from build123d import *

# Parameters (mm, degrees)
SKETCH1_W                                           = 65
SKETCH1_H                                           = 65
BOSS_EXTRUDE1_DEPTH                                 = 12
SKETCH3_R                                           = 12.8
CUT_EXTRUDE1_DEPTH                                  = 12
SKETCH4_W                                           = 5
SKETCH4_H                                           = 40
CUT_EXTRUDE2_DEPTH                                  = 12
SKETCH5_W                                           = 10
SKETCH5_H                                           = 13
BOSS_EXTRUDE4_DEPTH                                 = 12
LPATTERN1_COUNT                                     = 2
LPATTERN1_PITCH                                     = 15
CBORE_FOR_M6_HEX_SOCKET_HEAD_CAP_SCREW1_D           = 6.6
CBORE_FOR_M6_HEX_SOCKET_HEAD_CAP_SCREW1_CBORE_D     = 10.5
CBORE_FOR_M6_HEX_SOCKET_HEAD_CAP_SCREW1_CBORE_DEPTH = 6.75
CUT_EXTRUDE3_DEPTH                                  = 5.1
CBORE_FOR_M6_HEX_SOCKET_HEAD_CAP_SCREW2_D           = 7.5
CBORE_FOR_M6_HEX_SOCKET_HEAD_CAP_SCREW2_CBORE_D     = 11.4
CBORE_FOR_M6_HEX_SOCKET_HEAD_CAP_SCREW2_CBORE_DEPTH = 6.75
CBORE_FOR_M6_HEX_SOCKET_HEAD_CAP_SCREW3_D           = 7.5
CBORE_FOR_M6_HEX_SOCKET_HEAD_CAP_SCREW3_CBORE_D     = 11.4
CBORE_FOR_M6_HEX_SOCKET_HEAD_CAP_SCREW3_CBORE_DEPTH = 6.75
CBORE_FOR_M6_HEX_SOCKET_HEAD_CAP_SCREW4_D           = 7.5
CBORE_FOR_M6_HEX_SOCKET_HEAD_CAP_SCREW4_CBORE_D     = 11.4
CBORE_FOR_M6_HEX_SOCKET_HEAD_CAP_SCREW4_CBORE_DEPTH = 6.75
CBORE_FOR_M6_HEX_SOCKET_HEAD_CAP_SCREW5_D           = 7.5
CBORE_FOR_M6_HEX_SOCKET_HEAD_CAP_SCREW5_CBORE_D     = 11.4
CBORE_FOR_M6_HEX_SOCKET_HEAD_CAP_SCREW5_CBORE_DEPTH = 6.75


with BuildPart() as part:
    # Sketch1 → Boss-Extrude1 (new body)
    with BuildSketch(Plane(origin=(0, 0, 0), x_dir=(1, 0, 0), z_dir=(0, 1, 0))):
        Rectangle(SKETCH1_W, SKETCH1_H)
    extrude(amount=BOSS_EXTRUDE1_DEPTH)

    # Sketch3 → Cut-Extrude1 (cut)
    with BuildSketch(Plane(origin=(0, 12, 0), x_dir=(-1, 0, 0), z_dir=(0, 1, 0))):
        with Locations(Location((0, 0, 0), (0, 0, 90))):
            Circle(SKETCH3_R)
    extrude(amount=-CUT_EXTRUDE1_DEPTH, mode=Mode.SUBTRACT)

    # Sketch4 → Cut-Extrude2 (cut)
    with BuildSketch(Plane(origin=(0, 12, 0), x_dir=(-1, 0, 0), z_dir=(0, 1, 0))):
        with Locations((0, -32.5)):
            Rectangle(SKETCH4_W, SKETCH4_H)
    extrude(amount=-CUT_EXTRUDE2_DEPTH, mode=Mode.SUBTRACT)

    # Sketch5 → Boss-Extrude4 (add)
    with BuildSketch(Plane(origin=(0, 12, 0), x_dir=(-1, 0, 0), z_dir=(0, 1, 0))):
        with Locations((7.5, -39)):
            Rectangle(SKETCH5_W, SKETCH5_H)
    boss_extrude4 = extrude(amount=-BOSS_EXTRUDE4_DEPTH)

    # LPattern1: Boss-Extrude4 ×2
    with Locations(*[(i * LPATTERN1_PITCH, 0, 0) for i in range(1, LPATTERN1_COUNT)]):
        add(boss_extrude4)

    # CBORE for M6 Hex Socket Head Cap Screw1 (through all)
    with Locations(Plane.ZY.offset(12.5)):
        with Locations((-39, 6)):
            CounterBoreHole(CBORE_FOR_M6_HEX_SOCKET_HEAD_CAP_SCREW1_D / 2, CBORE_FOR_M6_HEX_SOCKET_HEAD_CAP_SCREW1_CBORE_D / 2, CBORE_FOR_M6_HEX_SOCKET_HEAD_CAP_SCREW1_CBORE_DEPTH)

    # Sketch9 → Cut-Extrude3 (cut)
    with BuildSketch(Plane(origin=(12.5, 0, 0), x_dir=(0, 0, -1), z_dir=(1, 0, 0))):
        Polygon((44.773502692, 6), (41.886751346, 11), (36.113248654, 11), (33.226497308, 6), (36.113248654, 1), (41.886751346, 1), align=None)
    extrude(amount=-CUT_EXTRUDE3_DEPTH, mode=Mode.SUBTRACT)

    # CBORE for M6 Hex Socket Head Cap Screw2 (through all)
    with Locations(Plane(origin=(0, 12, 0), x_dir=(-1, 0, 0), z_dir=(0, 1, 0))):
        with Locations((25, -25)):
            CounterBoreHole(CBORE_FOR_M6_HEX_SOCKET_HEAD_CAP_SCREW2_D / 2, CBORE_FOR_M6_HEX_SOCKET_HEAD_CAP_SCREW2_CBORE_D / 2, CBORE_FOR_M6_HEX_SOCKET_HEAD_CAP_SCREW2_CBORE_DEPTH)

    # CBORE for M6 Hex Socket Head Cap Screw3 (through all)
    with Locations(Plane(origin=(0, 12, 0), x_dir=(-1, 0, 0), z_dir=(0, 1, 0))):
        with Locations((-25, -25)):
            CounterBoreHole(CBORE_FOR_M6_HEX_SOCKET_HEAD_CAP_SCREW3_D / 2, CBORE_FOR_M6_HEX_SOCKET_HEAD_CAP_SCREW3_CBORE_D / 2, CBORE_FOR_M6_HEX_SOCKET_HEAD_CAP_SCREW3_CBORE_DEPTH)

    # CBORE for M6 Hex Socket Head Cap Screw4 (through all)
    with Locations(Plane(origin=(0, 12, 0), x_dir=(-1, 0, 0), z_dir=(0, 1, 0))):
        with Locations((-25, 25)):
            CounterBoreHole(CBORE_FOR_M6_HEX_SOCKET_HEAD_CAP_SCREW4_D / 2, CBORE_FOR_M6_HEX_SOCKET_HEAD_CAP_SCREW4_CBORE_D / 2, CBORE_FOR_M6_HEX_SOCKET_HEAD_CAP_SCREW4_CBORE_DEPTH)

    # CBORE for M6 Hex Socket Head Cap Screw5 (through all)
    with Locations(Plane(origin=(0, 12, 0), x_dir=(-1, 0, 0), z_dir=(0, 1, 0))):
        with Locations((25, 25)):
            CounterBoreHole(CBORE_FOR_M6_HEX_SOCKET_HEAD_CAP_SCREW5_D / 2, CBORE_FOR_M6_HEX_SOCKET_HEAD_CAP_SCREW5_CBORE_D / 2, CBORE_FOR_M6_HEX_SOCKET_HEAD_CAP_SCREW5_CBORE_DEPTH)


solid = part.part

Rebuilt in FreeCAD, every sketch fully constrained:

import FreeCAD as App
import Part
import Sketcher
from FreeCAD import Vector
Q = App.Units.Quantity

doc = App.newDocument("Part")
body = doc.addObject("PartDesign::Body", "Body")

sketch1 = doc.addObject("Sketcher::SketchObject", "Sketch")
body.addObject(sketch1)
sketch1.AttachmentSupport = (doc.XZ_Plane, [""])
sketch1.MapMode = "FlatFace"
sketch1.addGeometry([
    Part.LineSegment(Vector(-32.5, -32.5, 0), Vector(-32.5, 32.5, 0)),
    Part.LineSegment(Vector(-32.5, 32.5, 0), Vector(32.5, 32.5, 0)),
    Part.LineSegment(Vector(32.5, 32.5, 0), Vector(32.5, -32.5, 0)),
    Part.LineSegment(Vector(32.5, -32.5, 0), Vector(-32.5, -32.5, 0)),
], False)
sketch1.addConstraint([
    Sketcher.Constraint("Coincident", 0, 2, 1, 1),
    Sketcher.Constraint("Coincident", 1, 2, 2, 1),
    Sketcher.Constraint("Coincident", 2, 2, 3, 1),
    Sketcher.Constraint("Coincident", 3, 2, 0, 1),
    Sketcher.Constraint("Vertical", 0),
    Sketcher.Constraint("Horizontal", 1),
    Sketcher.Constraint("Vertical", 2),
    Sketcher.Constraint("Horizontal", 3),
    Sketcher.Constraint("Symmetric", 0, 2, 2, 2, -1, 1),
    Sketcher.Constraint("Equal", 3, 0),
    Sketcher.Constraint("DistanceX", 1, 1, 1, 2, 65.0),
])
pad1 = doc.addObject("PartDesign::Pad", "Pad")
body.addObject(pad1)
pad1.Profile = sketch1
pad1.Length = 12
pad1.Reversed = True

sketch2 = doc.addObject("Sketcher::SketchObject", "Sketch001")
body.addObject(sketch2)
sketch2.AttachmentSupport = (doc.XZ_Plane, [""])
sketch2.MapMode = "FlatFace"
sketch2.AttachmentOffset = App.Placement(Vector(0, 0, -12), App.Rotation())
sketch2.addGeometry(Part.Circle(Vector(0, 0, 0), Vector(0, 0, 1), 12.8), False)
sketch2.addConstraint([
    Sketcher.Constraint("Coincident", 0, 3, -1, 1),
    Sketcher.Constraint("Diameter", 0, 25.6),
])
pocket1 = doc.addObject("PartDesign::Pocket", "Pocket")
body.addObject(pocket1)
pocket1.Profile = sketch2
pocket1.Length = 12
pocket1.Reversed = True

sketch3 = doc.addObject("Sketcher::SketchObject", "Sketch002")
body.addObject(sketch3)
sketch3.AttachmentSupport = (doc.XZ_Plane, [""])
sketch3.MapMode = "FlatFace"
sketch3.AttachmentOffset = App.Placement(Vector(0, 0, -12), App.Rotation())
sketch3.addGeometry([
    Part.LineSegment(Vector(2.5, -12.5, 0), Vector(2.5, -52.5, 0)),
    Part.LineSegment(Vector(2.5, -52.5, 0), Vector(-2.5, -52.5, 0)),
    Part.LineSegment(Vector(-2.5, -52.5, 0), Vector(-2.5, -12.5, 0)),
    Part.LineSegment(Vector(-2.5, -12.5, 0), Vector(2.5, -12.5, 0)),
], False)
sketch3.addConstraint([
    Sketcher.Constraint("Coincident", 0, 2, 1, 1),
    Sketcher.Constraint("Coincident", 1, 2, 2, 1),
    Sketcher.Constraint("Coincident", 2, 2, 3, 1),
    Sketcher.Constraint("Coincident", 3, 2, 0, 1),
    Sketcher.Constraint("Vertical", 0),
    Sketcher.Constraint("Horizontal", 1),
    Sketcher.Constraint("Vertical", 2),
    Sketcher.Constraint("Horizontal", 3),
    Sketcher.Constraint("DistanceX", 1, 2, 1, 1, 5.0),
    Sketcher.Constraint("DistanceY", 0, 2, 0, 1, 40.0),
    Sketcher.Constraint("DistanceX", -1, 1, 0, 2, 2.5),
    Sketcher.Constraint("DistanceY", 0, 2, -1, 1, 52.5),
])
pocket2 = doc.addObject("PartDesign::Pocket", "Pocket001")
body.addObject(pocket2)
pocket2.Profile = sketch3
pocket2.Length = 12
pocket2.Reversed = True

sketch4 = doc.addObject("Sketcher::SketchObject", "Sketch003")
body.addObject(sketch4)
sketch4.AttachmentSupport = (doc.XZ_Plane, [""])
sketch4.MapMode = "FlatFace"
sketch4.AttachmentOffset = App.Placement(Vector(0, 0, -12), App.Rotation())
sketch4.addGeometry([
    Part.LineSegment(Vector(-2.5, -32.5, 0), Vector(-2.5, -45.5, 0)),
    Part.LineSegment(Vector(-2.5, -45.5, 0), Vector(-12.5, -45.5, 0)),
    Part.LineSegment(Vector(-12.5, -45.5, 0), Vector(-12.5, -32.5, 0)),
    Part.LineSegment(Vector(-12.5, -32.5, 0), Vector(-2.5, -32.5, 0)),
], False)
sketch4.addConstraint([
    Sketcher.Constraint("Coincident", 0, 2, 1, 1),
    Sketcher.Constraint("Coincident", 1, 2, 2, 1),
    Sketcher.Constraint("Coincident", 2, 2, 3, 1),
    Sketcher.Constraint("Coincident", 3, 2, 0, 1),
    Sketcher.Constraint("Vertical", 0),
    Sketcher.Constraint("Horizontal", 1),
    Sketcher.Constraint("Vertical", 2),
    Sketcher.Constraint("Horizontal", 3),
    Sketcher.Constraint("DistanceX", 1, 2, 1, 1, 10.0),
    Sketcher.Constraint("DistanceY", 0, 2, 0, 1, 13.0),
    Sketcher.Constraint("DistanceX", 0, 2, -1, 1, 2.5),
    Sketcher.Constraint("DistanceY", 0, 2, -1, 1, 45.5),
])
pad2 = doc.addObject("PartDesign::Pad", "Pad001")
body.addObject(pad2)
pad2.Profile = sketch4
pad2.Length = 12
doc.recompute()

linearpattern = doc.addObject("PartDesign::LinearPattern", "LinearPattern")
body.addObject(linearpattern)
linearpattern.Originals = [pad2]
linearpattern.Direction = (doc.X_Axis, [""])
linearpattern.Mode = "offset"
linearpattern.Offset = 15
linearpattern.Occurrences = 2
body.Tip = linearpattern

sketch5 = doc.addObject("Sketcher::SketchObject", "Sketch004")
body.addObject(sketch5)
sketch5.AttachmentSupport = (doc.YZ_Plane, [""])
sketch5.MapMode = "FlatFace"
sketch5.AttachmentOffset = App.Placement(Vector(0, 0, -12.5), App.Rotation())
sketch5.addGeometry(Part.Circle(Vector(6, -39, 0), Vector(0, 0, 1), 3.3), False)
sketch5.addConstraint([
    Sketcher.Constraint("Diameter", 0, 6.6),
    Sketcher.Constraint("DistanceX", -1, 1, 0, 3, 6.0),
    Sketcher.Constraint("DistanceY", 0, 3, -1, 1, 39.0),
])
doc.recompute()
hole = doc.addObject("PartDesign::Hole", "Hole")
body.addObject(hole)
hole.Profile = sketch5
hole.ThreadType = "None"
hole.Diameter = 6.6
hole.DepthType = "ThroughAll"
hole.HoleCutType = "Counterbore"
hole.HoleCutDiameter = 10.5
hole.HoleCutDepth = 6.75
hole.Reversed = True

sketch6 = doc.addObject("Sketcher::SketchObject", "Sketch005")
body.addObject(sketch6)
sketch6.AttachmentSupport = (doc.YZ_Plane, [""])
sketch6.MapMode = "FlatFace"
sketch6.AttachmentOffset = App.Placement(Vector(0, 0, 12.5), App.Rotation())
sketch6.addGeometry([
    Part.LineSegment(Vector(6, -44.773503, 0), Vector(11, -41.886751, 0)),
    Part.LineSegment(Vector(11, -41.886751, 0), Vector(11, -36.113249, 0)),
    Part.LineSegment(Vector(11, -36.113249, 0), Vector(6, -33.226497, 0)),
    Part.LineSegment(Vector(6, -33.226497, 0), Vector(1, -36.113249, 0)),
    Part.LineSegment(Vector(1, -36.113249, 0), Vector(1, -41.886751, 0)),
    Part.LineSegment(Vector(1, -41.886751, 0), Vector(6, -44.773503, 0)),
], False)
sketch6.addConstraint([
    Sketcher.Constraint("Coincident", 0, 2, 1, 1),
    Sketcher.Constraint("Coincident", 1, 2, 2, 1),
    Sketcher.Constraint("Coincident", 2, 2, 3, 1),
    Sketcher.Constraint("Coincident", 3, 2, 4, 1),
    Sketcher.Constraint("Coincident", 4, 2, 5, 1),
    Sketcher.Constraint("Coincident", 5, 2, 0, 1),
    Sketcher.Constraint("Vertical", 1),
    Sketcher.Constraint("Vertical", 4),
    Sketcher.Constraint("Parallel", 0, 3),
    Sketcher.Constraint("Parallel", 2, 5),
    Sketcher.Constraint("Horizontal", 1, 2, 3, 2),
    Sketcher.Constraint("Horizontal", 0, 2, 4, 2),
    Sketcher.Constraint("Vertical", 2, 2, 5, 2),
    Sketcher.Constraint("Angle", 0, Q("30 deg")),
    Sketcher.Constraint("DistanceX", -1, 1, 0, 2, 11.0),
    Sketcher.Constraint("DistanceX", -1, 1, 2, 2, 6.0),
    Sketcher.Constraint("DistanceY", 1, 1, 1, 2, 5.773503),
    Sketcher.Constraint("DistanceY", 0, 2, -1, 1, 41.886751),
])
pocket3 = doc.addObject("PartDesign::Pocket", "Pocket002")
body.addObject(pocket3)
pocket3.Profile = sketch6
pocket3.Length = 5.1

sketch7 = doc.addObject("Sketcher::SketchObject", "Sketch006")
body.addObject(sketch7)
sketch7.AttachmentSupport = (doc.XZ_Plane, [""])
sketch7.MapMode = "FlatFace"
sketch7.AttachmentOffset = App.Placement(Vector(0, 0, -12), App.Rotation())
sketch7.addGeometry(Part.Circle(Vector(-25, -25, 0), Vector(0, 0, 1), 3.75), False)
sketch7.addConstraint([
    Sketcher.Constraint("Diameter", 0, 7.5),
    Sketcher.Constraint("DistanceX", 0, 3, -1, 1, 25.0),
    Sketcher.Constraint("DistanceY", 0, 3, -1, 1, 25.0),
])
doc.recompute()
hole2 = doc.addObject("PartDesign::Hole", "Hole001")
body.addObject(hole2)
hole2.Profile = sketch7
hole2.ThreadType = "None"
hole2.Diameter = 7.5
hole2.DepthType = "ThroughAll"
hole2.HoleCutType = "Counterbore"
hole2.HoleCutDiameter = 11.4
hole2.HoleCutDepth = 6.75
hole2.Reversed = True

sketch8 = doc.addObject("Sketcher::SketchObject", "Sketch007")
body.addObject(sketch8)
sketch8.AttachmentSupport = (doc.XZ_Plane, [""])
sketch8.MapMode = "FlatFace"
sketch8.AttachmentOffset = App.Placement(Vector(0, 0, -12), App.Rotation())
sketch8.addGeometry(Part.Circle(Vector(25, -25, 0), Vector(0, 0, 1), 3.75), False)
sketch8.addConstraint([
    Sketcher.Constraint("Diameter", 0, 7.5),
    Sketcher.Constraint("DistanceX", -1, 1, 0, 3, 25.0),
    Sketcher.Constraint("DistanceY", 0, 3, -1, 1, 25.0),
])
doc.recompute()
hole3 = doc.addObject("PartDesign::Hole", "Hole002")
body.addObject(hole3)
hole3.Profile = sketch8
hole3.ThreadType = "None"
hole3.Diameter = 7.5
hole3.DepthType = "ThroughAll"
hole3.HoleCutType = "Counterbore"
hole3.HoleCutDiameter = 11.4
hole3.HoleCutDepth = 6.75
hole3.Reversed = True

sketch9 = doc.addObject("Sketcher::SketchObject", "Sketch008")
body.addObject(sketch9)
sketch9.AttachmentSupport = (doc.XZ_Plane, [""])
sketch9.MapMode = "FlatFace"
sketch9.AttachmentOffset = App.Placement(Vector(0, 0, -12), App.Rotation())
sketch9.addGeometry(Part.Circle(Vector(25, 25, 0), Vector(0, 0, 1), 3.75), False)
sketch9.addConstraint([
    Sketcher.Constraint("Diameter", 0, 7.5),
    Sketcher.Constraint("DistanceX", -1, 1, 0, 3, 25.0),
    Sketcher.Constraint("DistanceY", -1, 1, 0, 3, 25.0),
])
doc.recompute()
hole4 = doc.addObject("PartDesign::Hole", "Hole003")
body.addObject(hole4)
hole4.Profile = sketch9
hole4.ThreadType = "None"
hole4.Diameter = 7.5
hole4.DepthType = "ThroughAll"
hole4.HoleCutType = "Counterbore"
hole4.HoleCutDiameter = 11.4
hole4.HoleCutDepth = 6.75
hole4.Reversed = True

sketch10 = doc.addObject("Sketcher::SketchObject", "Sketch009")
body.addObject(sketch10)
sketch10.AttachmentSupport = (doc.XZ_Plane, [""])
sketch10.MapMode = "FlatFace"
sketch10.AttachmentOffset = App.Placement(Vector(0, 0, -12), App.Rotation())
sketch10.addGeometry(Part.Circle(Vector(-25, 25, 0), Vector(0, 0, 1), 3.75), False)
sketch10.addConstraint([
    Sketcher.Constraint("Diameter", 0, 7.5),
    Sketcher.Constraint("DistanceX", 0, 3, -1, 1, 25.0),
    Sketcher.Constraint("DistanceY", -1, 1, 0, 3, 25.0),
])
doc.recompute()
hole5 = doc.addObject("PartDesign::Hole", "Hole004")
body.addObject(hole5)
hole5.Profile = sketch10
hole5.ThreadType = "None"
hole5.Diameter = 7.5
hole5.DepthType = "ThroughAll"
hole5.HoleCutType = "Counterbore"
hole5.HoleCutDiameter = 11.4
hole5.HoleCutDepth = 6.75
hole5.Reversed = True

doc.recompute()
